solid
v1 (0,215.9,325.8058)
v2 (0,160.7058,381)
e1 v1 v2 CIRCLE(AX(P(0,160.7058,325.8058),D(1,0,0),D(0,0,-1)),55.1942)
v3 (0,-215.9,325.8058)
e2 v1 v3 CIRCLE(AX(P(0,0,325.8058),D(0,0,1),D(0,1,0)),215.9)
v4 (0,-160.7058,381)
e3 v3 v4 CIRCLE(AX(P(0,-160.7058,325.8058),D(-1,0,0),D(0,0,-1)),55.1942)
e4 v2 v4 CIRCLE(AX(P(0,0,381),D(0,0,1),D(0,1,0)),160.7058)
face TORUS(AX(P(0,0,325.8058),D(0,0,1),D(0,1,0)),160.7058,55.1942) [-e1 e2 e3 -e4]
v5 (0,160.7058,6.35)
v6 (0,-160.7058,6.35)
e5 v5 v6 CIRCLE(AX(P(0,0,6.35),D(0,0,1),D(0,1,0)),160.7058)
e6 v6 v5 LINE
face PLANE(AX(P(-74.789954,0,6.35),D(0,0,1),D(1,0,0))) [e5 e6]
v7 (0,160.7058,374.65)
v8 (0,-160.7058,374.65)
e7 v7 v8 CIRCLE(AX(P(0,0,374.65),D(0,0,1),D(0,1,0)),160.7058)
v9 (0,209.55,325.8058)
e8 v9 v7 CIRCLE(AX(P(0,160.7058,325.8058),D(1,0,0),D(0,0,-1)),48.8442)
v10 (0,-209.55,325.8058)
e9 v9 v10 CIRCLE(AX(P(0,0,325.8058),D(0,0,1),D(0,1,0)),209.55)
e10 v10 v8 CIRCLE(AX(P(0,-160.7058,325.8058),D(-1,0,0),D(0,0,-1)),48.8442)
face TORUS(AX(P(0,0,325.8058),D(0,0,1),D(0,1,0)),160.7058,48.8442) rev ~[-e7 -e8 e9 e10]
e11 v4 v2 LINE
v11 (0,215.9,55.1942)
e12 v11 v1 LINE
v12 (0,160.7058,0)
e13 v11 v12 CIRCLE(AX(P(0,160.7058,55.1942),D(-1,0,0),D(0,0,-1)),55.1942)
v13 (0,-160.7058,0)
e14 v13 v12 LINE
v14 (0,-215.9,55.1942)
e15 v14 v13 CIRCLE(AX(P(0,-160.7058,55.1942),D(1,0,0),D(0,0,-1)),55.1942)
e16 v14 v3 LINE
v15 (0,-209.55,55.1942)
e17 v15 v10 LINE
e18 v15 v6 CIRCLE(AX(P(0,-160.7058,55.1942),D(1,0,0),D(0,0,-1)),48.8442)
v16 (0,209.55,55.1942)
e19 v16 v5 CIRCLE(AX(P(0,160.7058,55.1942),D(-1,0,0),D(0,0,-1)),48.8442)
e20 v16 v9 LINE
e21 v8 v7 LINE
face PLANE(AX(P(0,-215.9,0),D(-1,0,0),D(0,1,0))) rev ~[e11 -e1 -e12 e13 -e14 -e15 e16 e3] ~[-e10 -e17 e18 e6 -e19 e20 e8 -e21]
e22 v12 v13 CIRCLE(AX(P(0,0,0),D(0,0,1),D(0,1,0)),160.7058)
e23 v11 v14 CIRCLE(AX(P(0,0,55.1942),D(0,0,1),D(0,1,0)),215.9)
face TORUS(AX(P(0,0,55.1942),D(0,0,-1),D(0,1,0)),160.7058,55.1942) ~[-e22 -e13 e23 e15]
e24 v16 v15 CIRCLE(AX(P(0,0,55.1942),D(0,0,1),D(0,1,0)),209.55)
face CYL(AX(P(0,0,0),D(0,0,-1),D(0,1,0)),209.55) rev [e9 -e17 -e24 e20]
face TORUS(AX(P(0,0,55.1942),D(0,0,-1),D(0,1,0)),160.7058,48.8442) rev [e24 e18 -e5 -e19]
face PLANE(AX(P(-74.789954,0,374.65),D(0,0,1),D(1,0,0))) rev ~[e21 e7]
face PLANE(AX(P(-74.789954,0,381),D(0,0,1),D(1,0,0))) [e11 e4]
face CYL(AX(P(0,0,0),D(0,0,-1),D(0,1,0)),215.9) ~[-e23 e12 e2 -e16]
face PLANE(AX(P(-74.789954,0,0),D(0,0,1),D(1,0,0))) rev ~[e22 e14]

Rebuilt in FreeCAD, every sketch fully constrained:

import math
import FreeCAD as App
import Part
import Sketcher

V = App.Vector
Q = App.Units.Quantity


def edges_at(feature, points):
    """Names of the edges that pass closest to the given points."""
    edges = feature.Shape.Edges
    near = lambda p: min(range(len(edges)), key=lambda i: edges[i].distToShape(Part.Vertex(*p))[0])
    return sorted({f"Edge{near(p) + 1}" for p in points})


def faces_at(feature, points):
    """Names of the faces that lie closest to the given points."""
    faces = feature.Shape.Faces
    near = lambda p: min(range(len(faces)), key=lambda i: faces[i].distToShape(Part.Vertex(*p))[0])
    return sorted({f"Face{near(p) + 1}" for p in points})

doc = App.newDocument("Part")
params = doc.addObject("Spreadsheet::Sheet", "Params")
for row, (alias, value) in enumerate([
    ("sketch1_radius", "8.5 in"),
    ("pad1_length", "15 in"),
    ("fillet_radius", "2.173 in"),
    ("fillet2_radius", "2.173 in"),
    ("thickness_wall", "0.25 in"),
], start=1):
    params.set(f"A{row}", alias)
    params.set(f"B{row}", "=" + value)
    params.setAlias(f"B{row}", alias)

body = doc.addObject("PartDesign::Body", "Body")

sketch1 = body.newObject("Sketcher::SketchObject", "Sketch")
sketch1.AttachmentSupport = (doc.getObject("XY_Plane"), [""])
sketch1.MapMode = "FlatFace"
sketch1.addGeometry([
    Part.LineSegment(V(0, -216, 0), V(0, 216, 0)),
    Part.ArcOfCircle(Part.Circle(V(0, 0, 0), V(0, 0, 1), 216), math.radians(90), math.radians(270)),
], False)
sketch1.addConstraint([
    Sketcher.Constraint("Coincident", 0, 1, 1, 2),
    Sketcher.Constraint("Coincident", 1, 1, 0, 2),
    Sketcher.Constraint("Vertical", 0),
    Sketcher.Constraint("Coincident", 1, 3, -1, 1),
    Sketcher.Constraint("PointOnObject", 0, 1, -2),
    Sketcher.Constraint("Radius", 1, Q("8.5 in")),
])
sketch1.setExpression("Constraints[5]", "Params.sketch1_radius")
pad1 = body.newObject("PartDesign::Pad", "Pad")
pad1.Profile = sketch1
pad1.setExpression("Length", "Params.pad1_length")
doc.recompute()

fillet = body.newObject("PartDesign::Fillet", "Fillet")
fillet.Base = (pad1, edges_at(pad1, [(-215.9, 0, 381)]))
fillet.setExpression("Radius", "Params.fillet_radius")
doc.recompute()

fillet2 = body.newObject("PartDesign::Fillet", "Fillet001")
fillet2.Base = (fillet, edges_at(fillet, [(-215.9, 0, 0)]))
fillet2.setExpression("Radius", "Params.fillet2_radius")
doc.recompute()

thickness = body.newObject("PartDesign::Thickness", "Thickness")
thickness.Base = (fillet2, faces_at(fillet2, [(0, 0, 190.5)]))
thickness.setExpression("Value", "Params.thickness_wall")
thickness.Reversed = True
thickness.Join = "Arc"

doc.recompute()
